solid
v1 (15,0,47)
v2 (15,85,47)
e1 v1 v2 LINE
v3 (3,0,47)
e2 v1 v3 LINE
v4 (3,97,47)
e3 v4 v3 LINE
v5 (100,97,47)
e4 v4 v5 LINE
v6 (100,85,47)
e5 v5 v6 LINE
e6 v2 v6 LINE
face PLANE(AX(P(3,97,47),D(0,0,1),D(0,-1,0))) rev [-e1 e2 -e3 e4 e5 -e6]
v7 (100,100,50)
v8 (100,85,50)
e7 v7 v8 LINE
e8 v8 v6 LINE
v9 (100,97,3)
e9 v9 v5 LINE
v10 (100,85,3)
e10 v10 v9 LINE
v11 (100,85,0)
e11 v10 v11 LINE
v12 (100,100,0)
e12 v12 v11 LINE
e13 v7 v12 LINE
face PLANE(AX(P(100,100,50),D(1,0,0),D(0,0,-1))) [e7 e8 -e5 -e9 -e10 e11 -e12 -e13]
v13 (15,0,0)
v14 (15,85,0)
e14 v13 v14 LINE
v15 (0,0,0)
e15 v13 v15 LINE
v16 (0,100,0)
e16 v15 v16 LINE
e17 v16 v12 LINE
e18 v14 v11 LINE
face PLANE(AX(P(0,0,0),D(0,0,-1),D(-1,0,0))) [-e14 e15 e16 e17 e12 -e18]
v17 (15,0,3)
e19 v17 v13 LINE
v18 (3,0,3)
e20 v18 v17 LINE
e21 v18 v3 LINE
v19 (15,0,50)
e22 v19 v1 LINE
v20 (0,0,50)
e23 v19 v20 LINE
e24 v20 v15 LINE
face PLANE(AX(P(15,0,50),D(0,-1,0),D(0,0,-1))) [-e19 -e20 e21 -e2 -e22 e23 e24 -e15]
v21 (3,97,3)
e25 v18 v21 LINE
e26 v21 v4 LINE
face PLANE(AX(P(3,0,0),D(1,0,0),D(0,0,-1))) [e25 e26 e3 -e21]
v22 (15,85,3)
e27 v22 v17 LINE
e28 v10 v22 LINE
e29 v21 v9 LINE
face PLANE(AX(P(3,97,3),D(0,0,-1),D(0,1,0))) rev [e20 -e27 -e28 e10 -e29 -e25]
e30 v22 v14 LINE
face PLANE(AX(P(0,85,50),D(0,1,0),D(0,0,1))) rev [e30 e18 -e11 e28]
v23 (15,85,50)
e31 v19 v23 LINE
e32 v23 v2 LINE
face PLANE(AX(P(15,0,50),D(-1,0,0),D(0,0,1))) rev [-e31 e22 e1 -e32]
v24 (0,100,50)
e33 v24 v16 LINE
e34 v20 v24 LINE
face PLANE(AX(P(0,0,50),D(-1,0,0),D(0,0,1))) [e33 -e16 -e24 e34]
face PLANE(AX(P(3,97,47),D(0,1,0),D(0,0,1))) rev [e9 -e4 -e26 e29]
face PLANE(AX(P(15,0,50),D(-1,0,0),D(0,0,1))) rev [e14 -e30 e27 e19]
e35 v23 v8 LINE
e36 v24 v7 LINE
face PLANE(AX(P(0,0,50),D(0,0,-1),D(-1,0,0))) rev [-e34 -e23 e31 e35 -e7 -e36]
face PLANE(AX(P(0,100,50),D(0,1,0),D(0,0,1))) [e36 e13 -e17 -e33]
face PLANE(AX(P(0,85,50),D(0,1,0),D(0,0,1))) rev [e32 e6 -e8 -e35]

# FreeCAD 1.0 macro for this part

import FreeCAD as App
import Part
import Sketcher
from FreeCAD import Vector
Q = App.Units.Quantity


def add_polygon(sketch, points):
    """Adds a closed chain of lines whose ends are joined by coincident constraints."""
    first, n = sketch.GeometryCount, len(points)
    for a, b in zip(points, points[1:] + points[:1]):
        sketch.addGeometry(Part.LineSegment(App.Vector(*a, 0), App.Vector(*b, 0)), False)
    for i in range(n):
        sketch.addConstraint(Sketcher.Constraint("Coincident", first + i, 2, first + (i + 1) % n, 1))

doc = App.newDocument("Part")
body = doc.addObject("PartDesign::Body", "Body")

sketch1 = body.newObject("Sketcher::SketchObject", "Sketch")
sketch1.AttachmentSupport = (doc.getObject("XY_Plane"), [""])
sketch1.MapMode = "FlatFace"
add_polygon(sketch1, [(0, 100), (0, 0), (15, 0), (15, 85), (100, 85), (100, 100)])
sketch1.addConstraint(Sketcher.Constraint("Vertical", 0))
sketch1.addConstraint(Sketcher.Constraint("Horizontal", 1))
sketch1.addConstraint(Sketcher.Constraint("Vertical", 2))
sketch1.addConstraint(Sketcher.Constraint("Horizontal", 3))
sketch1.addConstraint(Sketcher.Constraint("Vertical", 4))
sketch1.addConstraint(Sketcher.Constraint("Horizontal", 5))
sketch1.addConstraint(Sketcher.Constraint("Coincident", 0, 2, -1, 1))
sketch1.addConstraint(Sketcher.Constraint("Equal", 5, 0))
sketch1.addConstraint(Sketcher.Constraint("Equal", 3, 2))
sketch1.addConstraint(Sketcher.Constraint("DistanceX", 1, 1, 1, 2, Q("15 mm")))
sketch1.addConstraint(Sketcher.Constraint("DistanceX", 3, 1, 3, 2, Q("85 mm")))
pad1 = body.newObject("PartDesign::Pad", "Pad")
pad1.Profile = sketch1
pad1.Length = 50

sketch2 = body.newObject("Sketcher::SketchObject", "Sketch001")
sketch2.AttachmentSupport = (doc.getObject("YZ_Plane"), [""])
sketch2.MapMode = "FlatFace"
sketch2.AttachmentOffset = App.Placement(Vector(0, 0, 100), App.Rotation())
add_polygon(sketch2, [(97, 47), (-4, 47), (-4, 3), (97, 3)])
sketch2.addConstraint(Sketcher.Constraint("Horizontal", 0))
sketch2.addConstraint(Sketcher.Constraint("Vertical", 1))
sketch2.addConstraint(Sketcher.Constraint("Horizontal", 2))
sketch2.addConstraint(Sketcher.Constraint("Vertical", 3))
sketch2.addConstraint(Sketcher.Constraint("DistanceY", 1, 2, 1, 1, Q("44 mm")))
sketch2.addConstraint(Sketcher.Constraint("DistanceY", -1, 1, 0, 2, Q("47 mm")))
sketch2.addConstraint(Sketcher.Constraint("DistanceX", -1, 1, 2, 2, Q("97 mm")))
sketch2.addConstraint(Sketcher.Constraint("DistanceX", 0, 2, 0, 1, Q("100.666412 mm")))
pocket1 = body.newObject("PartDesign::Pocket", "Pocket")
pocket1.Profile = sketch2
pocket1.Length = 97

doc.recompute()
